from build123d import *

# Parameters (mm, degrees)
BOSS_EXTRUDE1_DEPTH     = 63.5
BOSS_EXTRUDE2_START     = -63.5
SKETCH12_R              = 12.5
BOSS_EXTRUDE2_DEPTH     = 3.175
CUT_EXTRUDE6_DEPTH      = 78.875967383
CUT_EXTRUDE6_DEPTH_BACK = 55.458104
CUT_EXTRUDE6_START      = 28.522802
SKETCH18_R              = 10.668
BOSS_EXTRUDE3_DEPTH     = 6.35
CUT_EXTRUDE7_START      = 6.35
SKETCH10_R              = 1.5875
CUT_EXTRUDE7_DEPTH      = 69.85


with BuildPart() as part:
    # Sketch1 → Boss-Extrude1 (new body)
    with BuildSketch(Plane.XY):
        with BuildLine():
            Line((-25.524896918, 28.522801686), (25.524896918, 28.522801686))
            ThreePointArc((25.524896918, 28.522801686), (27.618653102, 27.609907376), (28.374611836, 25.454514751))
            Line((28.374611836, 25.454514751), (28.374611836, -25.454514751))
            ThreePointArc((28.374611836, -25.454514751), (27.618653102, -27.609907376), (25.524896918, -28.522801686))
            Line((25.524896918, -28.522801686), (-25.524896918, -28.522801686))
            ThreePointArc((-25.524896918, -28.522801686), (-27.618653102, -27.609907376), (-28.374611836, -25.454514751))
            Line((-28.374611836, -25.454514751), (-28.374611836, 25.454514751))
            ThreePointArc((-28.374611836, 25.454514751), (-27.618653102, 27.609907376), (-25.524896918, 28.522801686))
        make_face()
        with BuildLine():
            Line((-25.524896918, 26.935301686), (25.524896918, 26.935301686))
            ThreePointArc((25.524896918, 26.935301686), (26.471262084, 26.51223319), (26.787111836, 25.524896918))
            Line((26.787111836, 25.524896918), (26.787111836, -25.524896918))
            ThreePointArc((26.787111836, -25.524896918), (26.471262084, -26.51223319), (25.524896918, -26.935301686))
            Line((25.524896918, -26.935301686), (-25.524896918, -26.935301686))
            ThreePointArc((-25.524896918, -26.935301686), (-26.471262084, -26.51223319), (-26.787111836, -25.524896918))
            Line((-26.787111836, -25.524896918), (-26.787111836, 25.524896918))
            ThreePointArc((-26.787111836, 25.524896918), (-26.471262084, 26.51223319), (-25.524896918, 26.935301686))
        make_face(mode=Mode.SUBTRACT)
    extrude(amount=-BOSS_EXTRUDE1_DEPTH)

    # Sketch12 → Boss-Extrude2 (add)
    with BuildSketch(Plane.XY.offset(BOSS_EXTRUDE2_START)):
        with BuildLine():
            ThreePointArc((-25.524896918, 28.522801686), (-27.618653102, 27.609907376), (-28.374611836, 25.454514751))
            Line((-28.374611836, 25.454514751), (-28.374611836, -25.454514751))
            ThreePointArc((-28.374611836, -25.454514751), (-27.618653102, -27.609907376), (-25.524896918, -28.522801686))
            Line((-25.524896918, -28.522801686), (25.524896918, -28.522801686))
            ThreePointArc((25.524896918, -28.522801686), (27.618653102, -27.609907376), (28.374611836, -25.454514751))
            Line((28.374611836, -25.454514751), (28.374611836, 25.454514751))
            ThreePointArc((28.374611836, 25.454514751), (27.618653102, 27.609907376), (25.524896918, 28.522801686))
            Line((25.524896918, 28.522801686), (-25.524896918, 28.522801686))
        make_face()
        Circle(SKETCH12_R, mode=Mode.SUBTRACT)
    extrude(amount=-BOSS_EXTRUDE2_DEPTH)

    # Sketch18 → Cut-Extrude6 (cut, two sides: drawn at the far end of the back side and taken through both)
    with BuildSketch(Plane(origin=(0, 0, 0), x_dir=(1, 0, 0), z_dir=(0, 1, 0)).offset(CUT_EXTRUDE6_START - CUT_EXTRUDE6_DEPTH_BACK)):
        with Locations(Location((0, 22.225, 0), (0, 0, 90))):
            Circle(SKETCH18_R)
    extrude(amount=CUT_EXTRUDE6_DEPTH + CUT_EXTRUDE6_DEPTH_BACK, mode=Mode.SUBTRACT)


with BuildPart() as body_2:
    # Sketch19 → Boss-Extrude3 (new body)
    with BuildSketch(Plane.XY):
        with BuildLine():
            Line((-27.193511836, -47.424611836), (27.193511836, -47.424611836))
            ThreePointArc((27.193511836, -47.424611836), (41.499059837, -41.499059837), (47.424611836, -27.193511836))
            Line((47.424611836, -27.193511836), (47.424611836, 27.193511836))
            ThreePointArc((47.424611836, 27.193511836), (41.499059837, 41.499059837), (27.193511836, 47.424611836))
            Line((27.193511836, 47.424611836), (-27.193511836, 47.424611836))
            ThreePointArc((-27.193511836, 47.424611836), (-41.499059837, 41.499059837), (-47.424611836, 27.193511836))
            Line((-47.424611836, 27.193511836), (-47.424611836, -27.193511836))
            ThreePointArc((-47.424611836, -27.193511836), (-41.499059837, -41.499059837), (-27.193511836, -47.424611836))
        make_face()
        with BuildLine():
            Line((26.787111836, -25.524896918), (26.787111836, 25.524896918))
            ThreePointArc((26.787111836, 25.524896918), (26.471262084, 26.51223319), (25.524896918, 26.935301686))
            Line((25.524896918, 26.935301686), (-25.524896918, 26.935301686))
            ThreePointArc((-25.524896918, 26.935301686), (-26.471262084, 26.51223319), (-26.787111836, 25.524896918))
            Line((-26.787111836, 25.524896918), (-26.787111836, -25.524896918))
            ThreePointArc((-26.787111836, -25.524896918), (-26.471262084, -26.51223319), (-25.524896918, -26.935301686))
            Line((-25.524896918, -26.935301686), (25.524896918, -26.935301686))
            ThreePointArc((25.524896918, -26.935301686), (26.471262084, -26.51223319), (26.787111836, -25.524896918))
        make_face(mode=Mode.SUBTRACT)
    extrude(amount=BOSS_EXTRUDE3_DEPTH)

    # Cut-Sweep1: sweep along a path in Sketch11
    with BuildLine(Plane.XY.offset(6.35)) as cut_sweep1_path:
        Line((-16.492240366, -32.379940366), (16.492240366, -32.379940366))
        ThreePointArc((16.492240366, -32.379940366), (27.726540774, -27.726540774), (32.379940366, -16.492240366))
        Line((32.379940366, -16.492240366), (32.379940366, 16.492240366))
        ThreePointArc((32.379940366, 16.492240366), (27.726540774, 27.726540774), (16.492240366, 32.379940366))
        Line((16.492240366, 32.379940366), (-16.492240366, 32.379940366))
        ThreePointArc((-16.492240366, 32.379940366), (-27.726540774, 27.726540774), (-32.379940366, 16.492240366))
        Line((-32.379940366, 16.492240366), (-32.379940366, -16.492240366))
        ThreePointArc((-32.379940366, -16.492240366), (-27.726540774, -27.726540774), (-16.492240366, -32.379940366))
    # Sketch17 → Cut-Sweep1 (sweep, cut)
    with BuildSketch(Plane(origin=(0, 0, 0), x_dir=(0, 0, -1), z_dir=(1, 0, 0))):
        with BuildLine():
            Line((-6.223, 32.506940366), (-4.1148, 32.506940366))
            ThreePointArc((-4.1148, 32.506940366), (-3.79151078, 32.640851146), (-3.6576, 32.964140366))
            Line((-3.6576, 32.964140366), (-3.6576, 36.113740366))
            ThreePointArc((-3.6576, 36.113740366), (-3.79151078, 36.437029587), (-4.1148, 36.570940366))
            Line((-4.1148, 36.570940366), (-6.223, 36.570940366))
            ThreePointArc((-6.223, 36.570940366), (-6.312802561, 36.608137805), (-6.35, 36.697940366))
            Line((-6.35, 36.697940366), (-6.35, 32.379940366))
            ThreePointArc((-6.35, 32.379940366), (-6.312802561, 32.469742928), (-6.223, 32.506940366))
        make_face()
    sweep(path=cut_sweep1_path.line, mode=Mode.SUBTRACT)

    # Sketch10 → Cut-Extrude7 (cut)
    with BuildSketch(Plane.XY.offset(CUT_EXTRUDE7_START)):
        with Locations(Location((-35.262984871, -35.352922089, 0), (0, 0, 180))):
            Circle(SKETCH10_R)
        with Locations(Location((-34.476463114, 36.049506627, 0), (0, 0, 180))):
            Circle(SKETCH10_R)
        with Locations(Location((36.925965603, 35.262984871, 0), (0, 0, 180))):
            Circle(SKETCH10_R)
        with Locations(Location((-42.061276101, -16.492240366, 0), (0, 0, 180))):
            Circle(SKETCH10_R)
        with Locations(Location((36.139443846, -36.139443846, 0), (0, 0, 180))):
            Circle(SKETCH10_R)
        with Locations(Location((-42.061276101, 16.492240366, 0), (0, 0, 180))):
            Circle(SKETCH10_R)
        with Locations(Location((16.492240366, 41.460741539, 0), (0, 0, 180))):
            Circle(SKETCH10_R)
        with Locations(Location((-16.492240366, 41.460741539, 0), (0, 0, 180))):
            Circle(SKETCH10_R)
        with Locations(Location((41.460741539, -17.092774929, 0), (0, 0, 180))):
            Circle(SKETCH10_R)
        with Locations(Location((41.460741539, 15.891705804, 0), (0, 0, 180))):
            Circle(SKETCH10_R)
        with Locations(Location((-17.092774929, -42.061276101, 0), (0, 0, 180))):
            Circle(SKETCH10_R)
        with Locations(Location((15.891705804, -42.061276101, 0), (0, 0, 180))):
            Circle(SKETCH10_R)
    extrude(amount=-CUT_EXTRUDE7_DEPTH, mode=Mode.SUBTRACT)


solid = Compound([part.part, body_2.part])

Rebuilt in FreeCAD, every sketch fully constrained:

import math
import FreeCAD as App
import Part
import Sketcher
Q = App.Units.Quantity

doc = App.newDocument("Part")
body = doc.addObject("PartDesign::Body", "Body")

sketch1 = doc.addObject("Sketcher::SketchObject", "Sketch")
body.addObject(sketch1)
sketch1.AttachmentSupport = (doc.XY_Plane, [""])
sketch1.MapMode = "FlatFace"
sketch1.addGeometry([
    Part.LineSegment(App.Vector(25.5, 28.5, 0), App.Vector(-25.5, 28.5, 0)),
    Part.ArcOfCircle(Part.Circle(App.Vector(-25.5, 25.7, 0), App.Vector(0, 0, 1), 2.9), math.radians(90), math.radians(184)),
    Part.LineSegment(App.Vector(-28.4, 25.5, 0), App.Vector(-28.4, -25.5, 0)),
    Part.ArcOfCircle(Part.Circle(App.Vector(-25.5, -25.7, 0), App.Vector(0, 0, 1), 2.9), math.radians(176), math.radians(270)),
    Part.LineSegment(App.Vector(-25.5, -28.5, 0), App.Vector(25.5, -28.5, 0)),
    Part.ArcOfCircle(Part.Circle(App.Vector(25.5, -25.7, 0), App.Vector(0, 0, 1), 2.9), math.radians(-90), math.radians(4)),
    Part.LineSegment(App.Vector(28.4, -25.5, 0), App.Vector(28.4, 25.5, 0)),
    Part.ArcOfCircle(Part.Circle(App.Vector(25.5, 25.7, 0), App.Vector(0, 0, 1), 2.9), math.radians(-4), math.radians(90)),
    Part.LineSegment(App.Vector(-25.5, 26.9, 0), App.Vector(25.5, 26.9, 0)),
    Part.ArcOfCircle(Part.Circle(App.Vector(25.5, 25.7, 0), App.Vector(0, 0, 1), 1.3), math.radians(-6), math.radians(90)),
    Part.LineSegment(App.Vector(26.8, 25.5, 0), App.Vector(26.8, -25.5, 0)),
    Part.ArcOfCircle(Part.Circle(App.Vector(25.5, -25.7, 0), App.Vector(0, 0, 1), 1.3), math.radians(-90), math.radians(6)),
    Part.LineSegment(App.Vector(25.5, -26.9, 0), App.Vector(-25.5, -26.9, 0)),
    Part.ArcOfCircle(Part.Circle(App.Vector(-25.5, -25.7, 0), App.Vector(0, 0, 1), 1.3), math.radians(174), math.radians(270)),
    Part.LineSegment(App.Vector(-26.8, -25.5, 0), App.Vector(-26.8, 25.5, 0)),
    Part.ArcOfCircle(Part.Circle(App.Vector(-25.5, 25.7, 0), App.Vector(0, 0, 1), 1.3), math.radians(90), math.radians(186)),
], False)
sketch1.addConstraint([
    Sketcher.Constraint("Tangent", 0, 2, 1, 1),
    Sketcher.Constraint("Coincident", 1, 2, 2, 1),
    Sketcher.Constraint("Coincident", 2, 2, 3, 1),
    Sketcher.Constraint("Tangent", 3, 2, 4, 1),
    Sketcher.Constraint("Tangent", 4, 2, 5, 1),
    Sketcher.Constraint("Coincident", 5, 2, 6, 1),
    Sketcher.Constraint("Coincident", 6, 2, 7, 1),
    Sketcher.Constraint("Tangent", 7, 2, 0, 1),
    Sketcher.Constraint("Tangent", 8, 2, 9, 2),
    Sketcher.Constraint("Coincident", 9, 1, 10, 1),
    Sketcher.Constraint("Coincident", 10, 2, 11, 2),
    Sketcher.Constraint("Tangent", 11, 1, 12, 1),
    Sketcher.Constraint("Tangent", 12, 2, 13, 2),
    Sketcher.Constraint("Coincident", 13, 1, 14, 1),
    Sketcher.Constraint("Coincident", 14, 2, 15, 2),
    Sketcher.Constraint("Tangent", 15, 1, 8, 1),
    Sketcher.Constraint("Horizontal", 0),
    Sketcher.Constraint("Vertical", 2),
    Sketcher.Constraint("Horizontal", 4),
    Sketcher.Constraint("Vertical", 6),
    Sketcher.Constraint("Horizontal", 8),
    Sketcher.Constraint("Vertical", 10),
    Sketcher.Constraint("Horizontal", 12),
    Sketcher.Constraint("Vertical", 14),
    Sketcher.Constraint("Coincident", 9, 3, 7, 3),
    Sketcher.Constraint("Coincident", 11, 3, 5, 3),
    Sketcher.Constraint("Coincident", 13, 3, 3, 3),
    Sketcher.Constraint("Coincident", 15, 3, 1, 3),
    Sketcher.Constraint("Equal", 1, 3),
    Sketcher.Constraint("Equal", 3, 5),
    Sketcher.Constraint("Equal", 5, 7),
    Sketcher.Constraint("Equal", 9, 11),
    Sketcher.Constraint("Symmetric", 1, 3, 5, 3, -1, 1),
    Sketcher.Constraint("Symmetric", 2, 2, 6, 2, -1, 1),
    Sketcher.Constraint("Symmetric", 10, 2, 13, 1, -2),
    Sketcher.Constraint("Equal", 12, 10),
    Sketcher.Constraint("Radius", 9, Q("0.05 in")),
    Sketcher.Constraint("Radius", 1, Q("0.1125 in")),
    Sketcher.Constraint("DistanceX", 9, 1, 6, 2, Q("0.0625 in")),
    Sketcher.Constraint("DistanceY", 2, 2, 2, 1, 50.90903),
    Sketcher.Constraint("DistanceY", -1, 1, 1, 3, 25.665302),
])
pad1 = doc.addObject("PartDesign::Pad", "Pad")
body.addObject(pad1)
pad1.Profile = sketch1
pad1.Length = Q("2.5 in")
pad1.Reversed = True

sketch2 = doc.addObject("Sketcher::SketchObject", "Sketch001")
body.addObject(sketch2)
sketch2.AttachmentSupport = (doc.XY_Plane, [""])
sketch2.MapMode = "FlatFace"
sketch2.AttachmentOffset = App.Placement(App.Vector(0, 0, -2.5 * 25.4), App.Rotation())
sketch2.addGeometry([
    Part.ArcOfCircle(Part.Circle(App.Vector(-25.5, 25.7, 0), App.Vector(0, 0, 1), 2.9), math.radians(90), math.radians(184)),
    Part.LineSegment(App.Vector(-28.4, 25.5, 0), App.Vector(-28.4, -25.5, 0)),
    Part.ArcOfCircle(Part.Circle(App.Vector(-25.5, -25.7, 0), App.Vector(0, 0, 1), 2.9), math.radians(176), math.radians(270)),
    Part.LineSegment(App.Vector(-25.5, -28.5, 0), App.Vector(25.5, -28.5, 0)),
    Part.ArcOfCircle(Part.Circle(App.Vector(25.5, -25.7, 0), App.Vector(0, 0, 1), 2.9), math.radians(-90), math.radians(4)),
    Part.LineSegment(App.Vector(28.4, -25.5, 0), App.Vector(28.4, 25.5, 0)),
    Part.ArcOfCircle(Part.Circle(App.Vector(25.5, 25.7, 0), App.Vector(0, 0, 1), 2.9), math.radians(-4), math.radians(90)),
    Part.LineSegment(App.Vector(25.5, 28.5, 0), App.Vector(-25.5, 28.5, 0)),
    Part.Circle(App.Vector(0, 0, 0), App.Vector(0, 0, 1), 12.5),
], False)
sketch2.addConstraint([
    Sketcher.Constraint("Coincident", 0, 2, 1, 1),
    Sketcher.Constraint("Coincident", 1, 2, 2, 1),
    Sketcher.Constraint("Tangent", 2, 2, 3, 1),
    Sketcher.Constraint("Tangent", 3, 2, 4, 1),
    Sketcher.Constraint("Coincident", 4, 2, 5, 1),
    Sketcher.Constraint("Coincident", 5, 2, 6, 1),
    Sketcher.Constraint("Tangent", 6, 2, 7, 1),
    Sketcher.Constraint("Tangent", 7, 2, 0, 1),
    Sketcher.Constraint("Vertical", 1),
    Sketcher.Constraint("Horizontal", 3),
    Sketcher.Constraint("Vertical", 5),
    Sketcher.Constraint("Horizontal", 7),
    Sketcher.Constraint("Coincident", 8, 3, -1, 1),
    Sketcher.Constraint("Equal", 0, 2),
    Sketcher.Constraint("Equal", 2, 4),
    Sketcher.Constraint("Equal", 4, 6),
    Sketcher.Constraint("Symmetric", 0, 3, 4, 3, -1, 1),
    Sketcher.Constraint("Symmetric", 1, 2, 5, 2, -1, 1),
    Sketcher.Constraint("Horizontal", 1, 2, 4, 2),
    Sketcher.Constraint("Radius", 0, Q("0.1125 in")),
    Sketcher.Constraint("Diameter", 8, 25.0),
    Sketcher.Constraint("DistanceY", 1, 2, 1, 1, 50.90903),
    Sketcher.Constraint("DistanceY", -1, 1, 0, 3, 25.665302),
    Sketcher.Constraint("DistanceX", 3, 1, 3, 2, 51.049794),
])
pad2 = doc.addObject("PartDesign::Pad", "Pad001")
body.addObject(pad2)
pad2.Profile = sketch2
pad2.Length = Q("0.125 in")
pad2.Reversed = True

sketch3 = doc.addObject("Sketcher::SketchObject", "Sketch002")
body.addObject(sketch3)
sketch3.AttachmentSupport = (doc.XZ_Plane, [""])
sketch3.MapMode = "FlatFace"
sketch3.AttachmentOffset = App.Placement(App.Vector(0, 0, -28.522802), App.Rotation())
sketch3.addGeometry(Part.Circle(App.Vector(0, -22, 0), App.Vector(0, 0, 1), 11), False)
sketch3.addConstraint([
    Sketcher.Constraint("PointOnObject", 0, 3, -2),
    Sketcher.Constraint("Diameter", 0, Q("0.84 in")),
    Sketcher.Constraint("DistanceY", 0, 3, -1, 1, Q("0.875 in")),
])
pocket1 = doc.addObject("PartDesign::Pocket", "Pocket")
body.addObject(pocket1)
pocket1.Profile = sketch3
pocket1.Type = "TwoLengths"
pocket1.Length = 78.875967
pocket1.Length2 = 55.458104
body2 = doc.addObject("PartDesign::Body", "Body001")

sketch4 = doc.addObject("Sketcher::SketchObject", "Sketch003")
body2.addObject(sketch4)
sketch4.AttachmentSupport = (doc.getObject("XY_Plane001"), [""])
sketch4.MapMode = "FlatFace"
sketch4.addGeometry([
    Part.LineSegment(App.Vector(-27.2, -47.4, 0), App.Vector(27.2, -47.4, 0)),
    Part.ArcOfCircle(Part.Circle(App.Vector(27.2, -27.2, 0), App.Vector(0, 0, 1), 20.2), math.radians(-90), math.radians(0)),
    Part.LineSegment(App.Vector(47.4, -27.2, 0), App.Vector(47.4, 27.2, 0)),
    Part.ArcOfCircle(Part.Circle(App.Vector(27.2, 27.2, 0), App.Vector(0, 0, 1), 20.2), math.radians(0), math.radians(90)),
    Part.LineSegment(App.Vector(27.2, 47.4, 0), App.Vector(-27.2, 47.4, 0)),
    Part.ArcOfCircle(Part.Circle(App.Vector(-27.2, 27.2, 0), App.Vector(0, 0, 1), 20.2), math.radians(90), math.radians(180)),
    Part.LineSegment(App.Vector(-47.4, 27.2, 0), App.Vector(-47.4, -27.2, 0)),
    Part.ArcOfCircle(Part.Circle(App.Vector(-27.2, -27.2, 0), App.Vector(0, 0, 1), 20.2), math.radians(180), math.radians(270)),
    Part.LineSegment(App.Vector(26.8, 25.5, 0), App.Vector(26.8, -25.5, 0)),
    Part.ArcOfCircle(Part.Circle(App.Vector(25.5, -25.7, 0), App.Vector(0, 0, 1), 1.3), math.radians(-90), math.radians(6)),
    Part.LineSegment(App.Vector(25.5, -26.9, 0), App.Vector(-25.5, -26.9, 0)),
    Part.ArcOfCircle(Part.Circle(App.Vector(-25.5, -25.7, 0), App.Vector(0, 0, 1), 1.3), math.radians(174), math.radians(270)),
    Part.LineSegment(App.Vector(-26.8, -25.5, 0), App.Vector(-26.8, 25.5, 0)),
    Part.ArcOfCircle(Part.Circle(App.Vector(-25.5, 25.7, 0), App.Vector(0, 0, 1), 1.3), math.radians(90), math.radians(186)),
    Part.LineSegment(App.Vector(-25.5, 26.9, 0), App.Vector(25.5, 26.9, 0)),
    Part.ArcOfCircle(Part.Circle(App.Vector(25.5, 25.7, 0), App.Vector(0, 0, 1), 1.3), math.radians(-6), math.radians(90)),
], False)
sketch4.addConstraint([
    Sketcher.Constraint("Tangent", 0, 2, 1, 1),
    Sketcher.Constraint("Tangent", 1, 2, 2, 1),
    Sketcher.Constraint("Tangent", 2, 2, 3, 1),
    Sketcher.Constraint("Tangent", 3, 2, 4, 1),
    Sketcher.Constraint("Tangent", 4, 2, 5, 1),
    Sketcher.Constraint("Tangent", 5, 2, 6, 1),
    Sketcher.Constraint("Tangent", 6, 2, 7, 1),
    Sketcher.Constraint("Tangent", 7, 2, 0, 1),
    Sketcher.Constraint("Coincident", 8, 2, 9, 2),
    Sketcher.Constraint("Tangent", 9, 1, 10, 1),
    Sketcher.Constraint("Tangent", 10, 2, 11, 2),
    Sketcher.Constraint("Coincident", 11, 1, 12, 1),
    Sketcher.Constraint("Coincident", 12, 2, 13, 2),
    Sketcher.Constraint("Tangent", 13, 1, 14, 1),
    Sketcher.Constraint("Tangent", 14, 2, 15, 2),
    Sketcher.Constraint("Coincident", 15, 1, 8, 1),
    Sketcher.Constraint("Horizontal", 0),
    Sketcher.Constraint("Vertical", 2),
    Sketcher.Constraint("Horizontal", 4),
    Sketcher.Constraint("Vertical", 6),
    Sketcher.Constraint("Vertical", 8),
    Sketcher.Constraint("Horizontal", 10),
    Sketcher.Constraint("Vertical", 12),
    Sketcher.Constraint("Horizontal", 14),
    Sketcher.Constraint("Equal", 1, 3),
    Sketcher.Constraint("Equal", 3, 5),
    Sketcher.Constraint("Equal", 5, 7),
    Sketcher.Constraint("Equal", 9, 11),
    Sketcher.Constraint("Equal", 11, 13),
    Sketcher.Constraint("Equal", 13, 15),
    Sketcher.Constraint("Symmetric", 1, 3, 5, 3, -1, 1),
    Sketcher.Constraint("Symmetric", 9, 3, 13, 3, -1, 1),
    Sketcher.Constraint("Symmetric", 11, 1, 15, 1, -1, 1),
    Sketcher.Constraint("Horizontal", 8, 2, 11, 1),
    Sketcher.Constraint("Equal", 4, 2),
    Sketcher.Constraint("Equal", 14, 8),
    Sketcher.Constraint("Radius", 9, Q("0.05 in")),
    Sketcher.Constraint("Radius", 1, Q("0.7965 in")),
    Sketcher.Constraint("DistanceX", 8, 2, 1, 3, Q("0.016 in")),
    Sketcher.Constraint("DistanceY", 9, 3, -1, 1, 25.665302),
    Sketcher.Constraint("DistanceY", 8, 2, 15, 3, 51.190199),
])
pad3 = doc.addObject("PartDesign::Pad", "Pad002")
body2.addObject(pad3)
pad3.Profile = sketch4
pad3.Length = Q("0.25 in")

sketch5 = doc.addObject("Sketcher::SketchObject", "Sketch004")
body2.addObject(sketch5)
sketch5.AttachmentSupport = (doc.getObject("YZ_Plane001"), [""])
sketch5.MapMode = "FlatFace"
sketch5.addGeometry([
    Part.LineSegment(App.Vector(32.51, 6.22, 0), App.Vector(32.51, 4.11, 0)),
    Part.ArcOfCircle(Part.Circle(App.Vector(32.96, 4.11, 0), App.Vector(0, 0, 1), 0.46), math.radians(-180), math.radians(-90)),
    Part.LineSegment(App.Vector(32.96, 3.66, 0), App.Vector(36.11, 3.66, 0)),
    Part.ArcOfCircle(Part.Circle(App.Vector(36.11, 4.11, 0), App.Vector(0, 0, 1), 0.46), math.radians(-90), math.radians(0)),
    Part.LineSegment(App.Vector(36.57, 4.11, 0), App.Vector(36.57, 6.22, 0)),
    Part.ArcOfCircle(Part.Circle(App.Vector(36.7, 6.22, 0), App.Vector(0, 0, 1), 0.13), math.radians(90), math.radians(180)),
    Part.LineSegment(App.Vector(36.7, 6.35, 0), App.Vector(32.38, 6.35, 0)),
    Part.ArcOfCircle(Part.Circle(App.Vector(32.38, 6.22, 0), App.Vector(0, 0, 1), 0.13), math.radians(0), math.radians(90)),
], False)
sketch5.addConstraint([
    Sketcher.Constraint("Tangent", 0, 2, 1, 1),
    Sketcher.Constraint("Tangent", 1, 2, 2, 1),
    Sketcher.Constraint("Tangent", 2, 2, 3, 1),
    Sketcher.Constraint("Tangent", 3, 2, 4, 1),
    Sketcher.Constraint("Tangent", 4, 2, 5, 2),
    Sketcher.Constraint("Tangent", 5, 1, 6, 1),
    Sketcher.Constraint("Tangent", 6, 2, 7, 2),
    Sketcher.Constraint("Tangent", 7, 1, 0, 1),
    Sketcher.Constraint("Vertical", 0),
    Sketcher.Constraint("Horizontal", 2),
    Sketcher.Constraint("Vertical", 4),
    Sketcher.Constraint("Horizontal", 6),
    Sketcher.Constraint("Equal", 1, 3),
    Sketcher.Constraint("Equal", 5, 7),
    Sketcher.Constraint("Radius", 1, Q("0.018 in")),
    Sketcher.Constraint("Radius", 5, Q("0.005 in")),
    Sketcher.Constraint("DistanceX", 6, 2, 6, 1, Q("0.17 in")),
    Sketcher.Constraint("DistanceY", 0, 2, 0, 1, Q("0.083 in")),
    Sketcher.Constraint("DistanceY", -1, 1, 5, 1, Q("0.25 in")),
    Sketcher.Constraint("DistanceX", -1, 1, 1, 3, 32.96414),
])

sketch6 = doc.addObject("Sketcher::SketchObject", "Sketch005")
body2.addObject(sketch6)
sketch6.AttachmentSupport = (doc.getObject("XY_Plane001"), [""])
sketch6.MapMode = "FlatFace"
sketch6.AttachmentOffset = App.Placement(App.Vector(0, 0, 0.25 * 25.4), App.Rotation())
sketch6.addGeometry([
    Part.LineSegment(App.Vector(-16, -32, 0), App.Vector(16, -32, 0)),
    Part.ArcOfCircle(Part.Circle(App.Vector(16, -16, 0), App.Vector(0, 0, 1), 16), math.radians(-90), math.radians(0)),
    Part.LineSegment(App.Vector(32, -16, 0), App.Vector(32, 16, 0)),
    Part.ArcOfCircle(Part.Circle(App.Vector(16, 16, 0), App.Vector(0, 0, 1), 16), math.radians(0), math.radians(90)),
    Part.LineSegment(App.Vector(16, 32, 0), App.Vector(-16, 32, 0)),
    Part.ArcOfCircle(Part.Circle(App.Vector(-16, 16, 0), App.Vector(0, 0, 1), 16), math.radians(90), math.radians(180)),
    Part.LineSegment(App.Vector(-32, 16, 0), App.Vector(-32, -16, 0)),
    Part.ArcOfCircle(Part.Circle(App.Vector(-16, -16, 0), App.Vector(0, 0, 1), 16), math.radians(180), math.radians(270)),
], False)
sketch6.addConstraint([
    Sketcher.Constraint("Tangent", 0, 2, 1, 1),
    Sketcher.Constraint("Tangent", 1, 2, 2, 1),
    Sketcher.Constraint("Tangent", 2, 2, 3, 1),
    Sketcher.Constraint("Tangent", 3, 2, 4, 1),
    Sketcher.Constraint("Tangent", 4, 2, 5, 1),
    Sketcher.Constraint("Tangent", 5, 2, 6, 1),
    Sketcher.Constraint("Tangent", 6, 2, 7, 1),
    Sketcher.Constraint("Tangent", 7, 2, 0, 1),
    Sketcher.Constraint("Horizontal", 0),
    Sketcher.Constraint("Vertical", 2),
    Sketcher.Constraint("Horizontal", 4),
    Sketcher.Constraint("Vertical", 6),
    Sketcher.Constraint("Equal", 1, 3),
    Sketcher.Constraint("Equal", 3, 5),
    Sketcher.Constraint("Equal", 5, 7),
    Sketcher.Constraint("Symmetric", 1, 3, 5, 3, -1, 1),
    Sketcher.Constraint("Equal", 4, 2),
    Sketcher.Constraint("Radius", 1, Q("0.6255 in")),
    Sketcher.Constraint("DistanceX", 0, 1, 0, 2, 32.984481),
])
doc.recompute()

subtractivepipe = doc.addObject("PartDesign::SubtractivePipe", "SubtractivePipe")
body2.addObject(subtractivepipe)
subtractivepipe.Profile = sketch5
subtractivepipe.Spine = (sketch6, ["Edge1", "Edge2", "Edge3", "Edge4", "Edge5", "Edge6", "Edge7", "Edge8"])

sketch7 = doc.addObject("Sketcher::SketchObject", "Sketch006")
body2.addObject(sketch7)
sketch7.AttachmentSupport = (doc.getObject("XY_Plane001"), [""])
sketch7.MapMode = "FlatFace"
sketch7.AttachmentOffset = App.Placement(App.Vector(0, 0, 0.25 * 25.4), App.Rotation())
sketch7.addGeometry([
    Part.Circle(App.Vector(-35.3, -35.4, 0), App.Vector(0, 0, 1), 1.6),
    Part.Circle(App.Vector(-34.5, 36, 0), App.Vector(0, 0, 1), 1.6),
    Part.Circle(App.Vector(36.9, 35.3, 0), App.Vector(0, 0, 1), 1.6),
    Part.Circle(App.Vector(-42.1, -16.5, 0), App.Vector(0, 0, 1), 1.6),
    Part.Circle(App.Vector(36.1, -36.1, 0), App.Vector(0, 0, 1), 1.6),
    Part.Circle(App.Vector(-42.1, 16.5, 0), App.Vector(0, 0, 1), 1.6),
    Part.Circle(App.Vector(16.5, 41.5, 0), App.Vector(0, 0, 1), 1.6),
    Part.Circle(App.Vector(-16.5, 41.5, 0), App.Vector(0, 0, 1), 1.6),
    Part.Circle(App.Vector(41.5, -17.1, 0), App.Vector(0, 0, 1), 1.6),
    Part.Circle(App.Vector(41.5, 15.9, 0), App.Vector(0, 0, 1), 1.6),
    Part.Circle(App.Vector(-17.1, -42.1, 0), App.Vector(0, 0, 1), 1.6),
    Part.Circle(App.Vector(15.9, -42.1, 0), App.Vector(0, 0, 1), 1.6),
], False)
sketch7.addConstraint([
    Sketcher.Constraint("Equal", 0, 1),
    Sketcher.Constraint("Equal", 1, 2),
    Sketcher.Constraint("Equal", 2, 3),
    Sketcher.Constraint("Equal", 3, 4),
    Sketcher.Constraint("Equal", 4, 5),
    Sketcher.Constraint("Equal", 5, 6),
    Sketcher.Constraint("Equal", 6, 7),
    Sketcher.Constraint("Equal", 7, 8),
    Sketcher.Constraint("Equal", 8, 9),
    Sketcher.Constraint("Equal", 9, 10),
    Sketcher.Constraint("Equal", 10, 11),
    Sketcher.Constraint("Symmetric", 6, 3, 7, 3, -2),
    Sketcher.Constraint("Symmetric", 3, 3, 5, 3, -1),
    Sketcher.Constraint("Horizontal", 10, 3, 11, 3),
    Sketcher.Constraint("Vertical", 8, 3, 9, 3),
    Sketcher.Constraint("Diameter", 0, Q("0.125 in")),
    Sketcher.Constraint("DistanceX", 4, 3, 8, 3, Q("0.2094999 in")),
    Sketcher.Constraint("DistanceY", 5, 3, 6, 3, 24.968501),
    Sketcher.Constraint("DistanceX", 6, 3, 8, 3, 24.968501),
    Sketcher.Constraint("DistanceX", 3, 3, 10, 3, 24.968501),
    Sketcher.Constraint("DistanceY", 10, 3, 8, 3, 24.968501),
    Sketcher.Constraint("DistanceY", 3, 3, -1, 1, 16.49224),
    Sketcher.Constraint("DistanceX", -1, 1, 6, 3, 16.49224),
    Sketcher.Constraint("DistanceX", 0, 3, 1, 3, 0.786522),
    Sketcher.Constraint("DistanceY", 0, 3, 1, 3, 71.402429),
    Sketcher.Constraint("DistanceX", 1, 3, 2, 3, 71.402429),
    Sketcher.Constraint("DistanceY", 2, 3, 1, 3, 0.786522),
    Sketcher.Constraint("DistanceX", 3, 3, 0, 3, 6.798291),
    Sketcher.Constraint("DistanceY", 0, 3, 3, 3, 18.860682),
    Sketcher.Constraint("DistanceX", 0, 3, 4, 3, 71.402429),
    Sketcher.Constraint("DistanceY", 4, 3, 0, 3, 0.786522),
    Sketcher.Constraint("DistanceY", 4, 3, 8, 3, 19.046669),
    Sketcher.Constraint("DistanceY", 9, 3, 2, 3, 19.371279),
    Sketcher.Constraint("DistanceX", 11, 3, 4, 3, 20.247738),
])
pocket2 = doc.addObject("PartDesign::Pocket", "Pocket001")
body2.addObject(pocket2)
pocket2.Profile = sketch7
pocket2.Length = Q("2.75 in")

doc.recompute()
